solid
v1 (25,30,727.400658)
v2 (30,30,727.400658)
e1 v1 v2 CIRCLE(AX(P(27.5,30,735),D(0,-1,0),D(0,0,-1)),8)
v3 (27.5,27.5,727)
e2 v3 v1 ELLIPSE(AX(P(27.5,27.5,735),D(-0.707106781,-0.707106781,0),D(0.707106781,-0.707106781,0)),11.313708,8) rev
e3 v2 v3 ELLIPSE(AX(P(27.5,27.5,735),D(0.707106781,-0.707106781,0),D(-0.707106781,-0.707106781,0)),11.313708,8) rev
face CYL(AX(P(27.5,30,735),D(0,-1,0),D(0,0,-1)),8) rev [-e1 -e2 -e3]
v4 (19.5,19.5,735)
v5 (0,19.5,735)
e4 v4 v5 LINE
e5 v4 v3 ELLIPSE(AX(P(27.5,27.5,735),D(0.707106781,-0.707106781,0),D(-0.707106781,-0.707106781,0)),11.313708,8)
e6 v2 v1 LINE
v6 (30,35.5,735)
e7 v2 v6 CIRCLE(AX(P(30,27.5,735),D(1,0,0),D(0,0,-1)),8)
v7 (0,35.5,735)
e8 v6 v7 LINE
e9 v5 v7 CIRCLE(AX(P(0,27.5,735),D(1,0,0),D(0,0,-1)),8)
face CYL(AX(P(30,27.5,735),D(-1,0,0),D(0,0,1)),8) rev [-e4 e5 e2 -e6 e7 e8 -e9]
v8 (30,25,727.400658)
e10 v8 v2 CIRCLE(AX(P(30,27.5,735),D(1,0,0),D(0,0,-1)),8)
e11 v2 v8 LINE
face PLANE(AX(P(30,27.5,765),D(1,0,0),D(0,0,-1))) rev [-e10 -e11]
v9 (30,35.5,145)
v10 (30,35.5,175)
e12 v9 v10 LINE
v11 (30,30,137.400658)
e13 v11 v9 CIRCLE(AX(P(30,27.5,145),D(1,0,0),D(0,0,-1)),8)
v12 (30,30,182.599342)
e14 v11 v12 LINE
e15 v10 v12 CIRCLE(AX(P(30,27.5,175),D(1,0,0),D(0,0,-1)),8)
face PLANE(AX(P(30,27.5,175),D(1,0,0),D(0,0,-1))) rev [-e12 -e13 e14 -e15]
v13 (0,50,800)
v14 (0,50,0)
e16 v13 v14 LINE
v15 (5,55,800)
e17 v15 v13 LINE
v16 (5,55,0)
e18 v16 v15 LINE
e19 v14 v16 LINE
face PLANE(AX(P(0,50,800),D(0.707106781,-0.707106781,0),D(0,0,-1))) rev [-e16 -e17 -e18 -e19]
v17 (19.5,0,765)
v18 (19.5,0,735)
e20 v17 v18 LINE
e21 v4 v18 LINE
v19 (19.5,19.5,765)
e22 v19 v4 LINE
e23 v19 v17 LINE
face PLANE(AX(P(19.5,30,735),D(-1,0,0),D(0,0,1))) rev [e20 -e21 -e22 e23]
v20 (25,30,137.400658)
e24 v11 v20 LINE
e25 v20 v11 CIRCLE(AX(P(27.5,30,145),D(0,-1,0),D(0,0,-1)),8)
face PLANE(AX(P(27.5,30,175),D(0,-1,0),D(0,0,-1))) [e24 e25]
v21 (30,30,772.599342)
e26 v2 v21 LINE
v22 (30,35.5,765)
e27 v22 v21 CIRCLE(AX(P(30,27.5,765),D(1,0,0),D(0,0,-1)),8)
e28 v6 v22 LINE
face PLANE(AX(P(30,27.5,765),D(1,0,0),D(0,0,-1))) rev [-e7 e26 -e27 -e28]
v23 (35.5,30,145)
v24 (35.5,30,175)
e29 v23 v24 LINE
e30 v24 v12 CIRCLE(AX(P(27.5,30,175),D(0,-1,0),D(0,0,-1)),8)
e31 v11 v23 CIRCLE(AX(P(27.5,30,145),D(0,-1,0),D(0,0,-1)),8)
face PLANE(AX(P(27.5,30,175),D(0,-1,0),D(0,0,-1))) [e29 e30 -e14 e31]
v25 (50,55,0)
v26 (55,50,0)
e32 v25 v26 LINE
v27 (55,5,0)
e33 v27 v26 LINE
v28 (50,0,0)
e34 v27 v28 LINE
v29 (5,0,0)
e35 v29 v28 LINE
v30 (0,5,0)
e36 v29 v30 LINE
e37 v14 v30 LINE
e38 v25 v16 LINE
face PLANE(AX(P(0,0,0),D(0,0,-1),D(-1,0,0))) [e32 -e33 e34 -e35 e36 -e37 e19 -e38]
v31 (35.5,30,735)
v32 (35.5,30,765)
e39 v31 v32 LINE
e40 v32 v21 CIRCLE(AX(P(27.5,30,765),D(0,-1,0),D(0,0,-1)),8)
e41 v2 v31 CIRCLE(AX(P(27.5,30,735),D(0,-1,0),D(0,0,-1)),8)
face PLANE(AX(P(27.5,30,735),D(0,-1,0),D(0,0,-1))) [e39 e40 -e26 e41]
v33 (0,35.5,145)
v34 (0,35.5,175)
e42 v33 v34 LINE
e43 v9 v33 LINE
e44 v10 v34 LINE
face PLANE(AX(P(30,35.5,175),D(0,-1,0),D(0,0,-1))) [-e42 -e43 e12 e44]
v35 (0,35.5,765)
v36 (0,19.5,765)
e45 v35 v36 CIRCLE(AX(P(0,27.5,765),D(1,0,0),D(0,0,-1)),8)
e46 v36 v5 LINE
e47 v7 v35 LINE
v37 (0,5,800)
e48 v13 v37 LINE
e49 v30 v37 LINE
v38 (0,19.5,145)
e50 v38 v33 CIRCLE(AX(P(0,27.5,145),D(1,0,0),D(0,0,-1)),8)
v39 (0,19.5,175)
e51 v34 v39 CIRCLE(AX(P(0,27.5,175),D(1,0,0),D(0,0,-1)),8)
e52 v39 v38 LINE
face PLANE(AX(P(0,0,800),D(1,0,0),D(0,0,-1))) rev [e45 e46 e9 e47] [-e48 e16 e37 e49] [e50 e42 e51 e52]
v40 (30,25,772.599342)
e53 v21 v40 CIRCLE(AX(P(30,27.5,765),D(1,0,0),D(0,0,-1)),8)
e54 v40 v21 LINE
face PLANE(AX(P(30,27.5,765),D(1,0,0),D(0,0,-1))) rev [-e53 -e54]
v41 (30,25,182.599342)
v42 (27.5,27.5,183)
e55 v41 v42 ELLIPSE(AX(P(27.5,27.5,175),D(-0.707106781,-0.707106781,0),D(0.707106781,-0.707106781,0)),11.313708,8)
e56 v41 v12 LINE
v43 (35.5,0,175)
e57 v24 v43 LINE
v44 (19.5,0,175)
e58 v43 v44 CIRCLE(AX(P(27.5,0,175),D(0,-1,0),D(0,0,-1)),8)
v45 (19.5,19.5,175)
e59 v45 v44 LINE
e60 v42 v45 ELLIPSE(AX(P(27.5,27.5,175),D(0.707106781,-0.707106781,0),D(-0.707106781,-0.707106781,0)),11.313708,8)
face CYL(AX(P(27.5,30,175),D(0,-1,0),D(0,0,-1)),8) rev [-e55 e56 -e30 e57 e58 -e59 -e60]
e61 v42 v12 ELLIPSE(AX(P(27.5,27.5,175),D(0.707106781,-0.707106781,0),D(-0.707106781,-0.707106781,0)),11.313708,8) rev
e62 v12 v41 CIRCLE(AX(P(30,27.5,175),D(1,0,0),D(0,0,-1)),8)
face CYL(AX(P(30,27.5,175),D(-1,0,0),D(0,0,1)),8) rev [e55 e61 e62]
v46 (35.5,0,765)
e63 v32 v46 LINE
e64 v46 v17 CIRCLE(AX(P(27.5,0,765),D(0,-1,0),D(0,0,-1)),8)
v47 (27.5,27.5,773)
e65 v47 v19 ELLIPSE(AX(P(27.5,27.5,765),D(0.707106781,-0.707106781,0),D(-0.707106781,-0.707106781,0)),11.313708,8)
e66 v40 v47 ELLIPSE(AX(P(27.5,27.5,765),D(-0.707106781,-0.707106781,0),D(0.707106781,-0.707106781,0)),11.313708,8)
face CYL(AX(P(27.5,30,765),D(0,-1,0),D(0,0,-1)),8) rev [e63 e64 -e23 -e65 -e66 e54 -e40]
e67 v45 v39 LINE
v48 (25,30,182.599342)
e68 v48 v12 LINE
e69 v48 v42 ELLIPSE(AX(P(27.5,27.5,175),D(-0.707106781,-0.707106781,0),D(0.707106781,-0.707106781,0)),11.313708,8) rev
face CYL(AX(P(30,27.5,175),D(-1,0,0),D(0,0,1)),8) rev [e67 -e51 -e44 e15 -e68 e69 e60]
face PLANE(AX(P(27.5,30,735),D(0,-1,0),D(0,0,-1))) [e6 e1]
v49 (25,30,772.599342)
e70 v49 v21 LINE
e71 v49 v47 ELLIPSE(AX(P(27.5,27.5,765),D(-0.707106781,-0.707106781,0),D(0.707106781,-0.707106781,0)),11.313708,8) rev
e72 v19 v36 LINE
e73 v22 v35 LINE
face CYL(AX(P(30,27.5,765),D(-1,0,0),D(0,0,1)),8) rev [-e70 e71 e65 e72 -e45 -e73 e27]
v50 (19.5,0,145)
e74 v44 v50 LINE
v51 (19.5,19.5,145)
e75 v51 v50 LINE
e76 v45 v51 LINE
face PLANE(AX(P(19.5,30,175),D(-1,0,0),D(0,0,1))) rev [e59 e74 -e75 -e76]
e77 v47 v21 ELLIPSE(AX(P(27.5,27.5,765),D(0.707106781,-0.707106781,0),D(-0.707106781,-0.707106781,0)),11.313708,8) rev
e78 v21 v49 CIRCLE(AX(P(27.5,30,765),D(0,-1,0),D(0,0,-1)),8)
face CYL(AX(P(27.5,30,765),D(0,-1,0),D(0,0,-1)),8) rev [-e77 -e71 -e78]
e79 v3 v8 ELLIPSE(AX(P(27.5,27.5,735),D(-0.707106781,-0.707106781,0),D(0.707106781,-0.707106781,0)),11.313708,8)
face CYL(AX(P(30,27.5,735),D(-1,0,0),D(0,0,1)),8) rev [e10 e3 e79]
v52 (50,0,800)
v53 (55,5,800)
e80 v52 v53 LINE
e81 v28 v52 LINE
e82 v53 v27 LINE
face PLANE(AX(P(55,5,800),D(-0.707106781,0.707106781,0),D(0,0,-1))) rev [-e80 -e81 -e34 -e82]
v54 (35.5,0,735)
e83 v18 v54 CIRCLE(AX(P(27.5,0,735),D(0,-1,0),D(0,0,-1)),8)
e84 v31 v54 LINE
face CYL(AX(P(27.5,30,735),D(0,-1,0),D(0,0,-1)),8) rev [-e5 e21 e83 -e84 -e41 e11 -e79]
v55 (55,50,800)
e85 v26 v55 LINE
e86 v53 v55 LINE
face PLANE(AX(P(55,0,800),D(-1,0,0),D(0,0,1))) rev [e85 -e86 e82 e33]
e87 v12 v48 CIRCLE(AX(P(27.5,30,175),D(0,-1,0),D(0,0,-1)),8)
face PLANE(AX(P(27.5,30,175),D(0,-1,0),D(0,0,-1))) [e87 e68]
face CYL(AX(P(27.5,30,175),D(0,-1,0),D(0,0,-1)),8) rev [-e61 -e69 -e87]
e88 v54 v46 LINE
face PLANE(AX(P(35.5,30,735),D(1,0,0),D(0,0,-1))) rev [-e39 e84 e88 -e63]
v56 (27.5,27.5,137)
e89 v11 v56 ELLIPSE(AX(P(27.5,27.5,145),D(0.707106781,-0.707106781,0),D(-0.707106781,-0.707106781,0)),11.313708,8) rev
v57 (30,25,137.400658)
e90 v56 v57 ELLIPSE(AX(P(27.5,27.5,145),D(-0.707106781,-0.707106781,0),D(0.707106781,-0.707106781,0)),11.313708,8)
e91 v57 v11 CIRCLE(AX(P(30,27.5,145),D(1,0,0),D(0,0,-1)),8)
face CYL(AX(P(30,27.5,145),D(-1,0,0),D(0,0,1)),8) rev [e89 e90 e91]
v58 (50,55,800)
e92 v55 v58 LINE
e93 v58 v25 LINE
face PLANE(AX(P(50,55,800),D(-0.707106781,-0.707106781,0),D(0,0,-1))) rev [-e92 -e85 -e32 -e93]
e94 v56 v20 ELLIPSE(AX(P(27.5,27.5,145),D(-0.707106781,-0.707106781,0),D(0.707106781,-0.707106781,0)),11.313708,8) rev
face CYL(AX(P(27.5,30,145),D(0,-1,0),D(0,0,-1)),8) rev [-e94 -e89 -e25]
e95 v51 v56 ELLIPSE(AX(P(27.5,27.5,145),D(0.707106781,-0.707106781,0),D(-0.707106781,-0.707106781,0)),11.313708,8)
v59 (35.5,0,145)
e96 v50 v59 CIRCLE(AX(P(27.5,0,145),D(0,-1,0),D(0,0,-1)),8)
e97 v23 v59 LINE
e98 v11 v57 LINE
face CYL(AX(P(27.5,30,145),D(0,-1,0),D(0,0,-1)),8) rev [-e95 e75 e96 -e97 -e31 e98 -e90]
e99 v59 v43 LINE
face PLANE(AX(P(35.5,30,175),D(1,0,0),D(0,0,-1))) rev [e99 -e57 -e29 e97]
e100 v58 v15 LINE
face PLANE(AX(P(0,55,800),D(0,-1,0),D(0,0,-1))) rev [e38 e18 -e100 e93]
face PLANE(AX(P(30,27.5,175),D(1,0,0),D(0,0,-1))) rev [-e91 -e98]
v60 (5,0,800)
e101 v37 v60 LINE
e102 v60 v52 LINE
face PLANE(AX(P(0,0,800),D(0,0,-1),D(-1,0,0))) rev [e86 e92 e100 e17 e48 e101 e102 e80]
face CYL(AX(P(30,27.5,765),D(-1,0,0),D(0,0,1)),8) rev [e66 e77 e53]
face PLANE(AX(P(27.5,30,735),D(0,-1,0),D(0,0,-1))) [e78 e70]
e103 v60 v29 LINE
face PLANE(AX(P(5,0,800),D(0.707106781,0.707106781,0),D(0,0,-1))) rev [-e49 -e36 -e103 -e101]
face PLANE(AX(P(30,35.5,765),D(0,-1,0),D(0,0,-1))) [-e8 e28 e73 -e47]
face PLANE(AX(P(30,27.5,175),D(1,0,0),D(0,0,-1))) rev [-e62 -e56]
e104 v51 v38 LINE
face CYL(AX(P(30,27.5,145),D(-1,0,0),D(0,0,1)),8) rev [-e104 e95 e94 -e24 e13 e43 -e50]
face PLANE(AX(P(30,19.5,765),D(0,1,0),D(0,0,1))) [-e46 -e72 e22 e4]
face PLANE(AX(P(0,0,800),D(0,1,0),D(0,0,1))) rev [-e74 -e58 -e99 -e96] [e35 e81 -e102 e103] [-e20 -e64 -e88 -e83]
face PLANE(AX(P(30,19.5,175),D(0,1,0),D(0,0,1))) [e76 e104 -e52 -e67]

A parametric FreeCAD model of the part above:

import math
import FreeCAD as App
import Part
import Sketcher

V = App.Vector
Q = App.Units.Quantity


def edges_at(feature, points):
    """Names of the edges that pass closest to the given points."""
    edges = feature.Shape.Edges
    near = lambda p: min(range(len(edges)), key=lambda i: edges[i].distToShape(Part.Vertex(*p))[0])
    return sorted({f"Edge{near(p) + 1}" for p in points})

doc = App.newDocument("Part")
params = doc.addObject("Spreadsheet::Sheet", "Params")
for row, (alias, value) in enumerate([
    ("sketch1_width", "55 mm"),
    ("pad1_length", "800 mm"),
    ("sketch2_radius", "8 mm"),
    ("sketch2_height", "30 mm"),
    ("pocket1_length", "30 mm"),
    ("sketch3_radius", "8 mm"),
    ("sketch3_height", "30 mm"),
    ("pocket2_length", "30 mm"),
    ("chamfer_size", "5 mm"),
], start=1):
    params.set(f"A{row}", alias)
    params.set(f"B{row}", "=" + value)
    params.setAlias(f"B{row}", alias)

body = doc.addObject("PartDesign::Body", "Body")

sketch1 = doc.addObject("Sketcher::SketchObject", "Sketch")
body.addObject(sketch1)
sketch1.AttachmentSupport = (doc.XY_Plane, [""])
sketch1.MapMode = "FlatFace"
sketch1.addGeometry([
    Part.LineSegment(V(0, 55, 0), V(0, 0, 0)),
    Part.LineSegment(V(0, 0, 0), V(55, 0, 0)),
    Part.LineSegment(V(55, 0, 0), V(55, 55, 0)),
    Part.LineSegment(V(55, 55, 0), V(0, 55, 0)),
], False)
sketch1.addConstraint([
    Sketcher.Constraint("Coincident", 0, 2, 1, 1),
    Sketcher.Constraint("Coincident", 1, 2, 2, 1),
    Sketcher.Constraint("Coincident", 2, 2, 3, 1),
    Sketcher.Constraint("Coincident", 3, 2, 0, 1),
    Sketcher.Constraint("Vertical", 0),
    Sketcher.Constraint("Horizontal", 1),
    Sketcher.Constraint("Vertical", 2),
    Sketcher.Constraint("Horizontal", 3),
    Sketcher.Constraint("Coincident", 0, 2, -1, 1),
    Sketcher.Constraint("Equal", 3, 0),
    Sketcher.Constraint("DistanceX", 1, 1, 1, 2, Q("55 mm")),
])
sketch1.setExpression("Constraints[10]", "Params.sketch1_width")
pad1 = doc.addObject("PartDesign::Pad", "Pad")
body.addObject(pad1)
pad1.Profile = sketch1
pad1.setExpression("Length", "Params.pad1_length")

sketch2 = doc.addObject("Sketcher::SketchObject", "Sketch001")
body.addObject(sketch2)
sketch2.AttachmentSupport = (doc.XZ_Plane, [""])
sketch2.MapMode = "FlatFace"
sketch2.addGeometry([
    Part.LineSegment(V(36, 145, 0), V(36, 175, 0)),
    Part.ArcOfCircle(Part.Circle(V(28, 175, 0), V(0, 0, 1), 8), math.radians(0), math.radians(180)),
    Part.LineSegment(V(20, 175, 0), V(20, 145, 0)),
    Part.ArcOfCircle(Part.Circle(V(28, 145, 0), V(0, 0, 1), 8), math.radians(180), math.radians(360)),
    Part.LineSegment(V(20, 765, 0), V(20, 735, 0)),
    Part.ArcOfCircle(Part.Circle(V(28, 735, 0), V(0, 0, 1), 8), math.radians(180), math.radians(360)),
    Part.LineSegment(V(36, 735, 0), V(36, 765, 0)),
    Part.ArcOfCircle(Part.Circle(V(28, 765, 0), V(0, 0, 1), 8), math.radians(0), math.radians(180)),
], False)
sketch2.addConstraint([
    Sketcher.Constraint("Tangent", 0, 2, 1, 1),
    Sketcher.Constraint("Tangent", 1, 2, 2, 1),
    Sketcher.Constraint("Tangent", 2, 2, 3, 1),
    Sketcher.Constraint("Tangent", 3, 2, 0, 1),
    Sketcher.Constraint("Tangent", 4, 2, 5, 1),
    Sketcher.Constraint("Tangent", 5, 2, 6, 1),
    Sketcher.Constraint("Tangent", 6, 2, 7, 1),
    Sketcher.Constraint("Tangent", 7, 2, 4, 1),
    Sketcher.Constraint("Vertical", 0),
    Sketcher.Constraint("Vertical", 2),
    Sketcher.Constraint("Vertical", 4),
    Sketcher.Constraint("Vertical", 6),
    Sketcher.Constraint("Equal", 3, 5),
    Sketcher.Constraint("Vertical", 3, 3, 5, 3),
    Sketcher.Constraint("Equal", 2, 4),
    Sketcher.Constraint("Radius", 1, Q("8 mm")),
    Sketcher.Constraint("DistanceY", 0, 1, 0, 2, Q("30 mm")),
    Sketcher.Constraint("DistanceY", -1, 1, 1, 3, Q("175 mm")),
    Sketcher.Constraint("DistanceY", -1, 1, 5, 3, Q("735 mm")),
    Sketcher.Constraint("DistanceX", -1, 1, 1, 3, Q("27.5 mm")),
])
sketch2.setExpression("Constraints[15]", "Params.sketch2_radius")
sketch2.setExpression("Constraints[16]", "Params.sketch2_height")
pocket1 = doc.addObject("PartDesign::Pocket", "Pocket")
body.addObject(pocket1)
pocket1.Profile = sketch2
pocket1.setExpression("Length", "Params.pocket1_length")

sketch3 = doc.addObject("Sketcher::SketchObject", "Sketch002")
body.addObject(sketch3)
sketch3.AttachmentSupport = (doc.YZ_Plane, [""])
sketch3.MapMode = "FlatFace"
sketch3.addGeometry([
    Part.LineSegment(V(36, 145, 0), V(36, 175, 0)),
    Part.ArcOfCircle(Part.Circle(V(28, 175, 0), V(0, 0, 1), 8), math.radians(0), math.radians(180)),
    Part.LineSegment(V(20, 175, 0), V(20, 145, 0)),
    Part.ArcOfCircle(Part.Circle(V(28, 145, 0), V(0, 0, 1), 8), math.radians(180), math.radians(360)),
    Part.LineSegment(V(36, 735, 0), V(36, 765, 0)),
    Part.ArcOfCircle(Part.Circle(V(28, 765, 0), V(0, 0, 1), 8), math.radians(0), math.radians(180)),
    Part.LineSegment(V(20, 765, 0), V(20, 735, 0)),
    Part.ArcOfCircle(Part.Circle(V(28, 735, 0), V(0, 0, 1), 8), math.radians(180), math.radians(360)),
], False)
sketch3.addConstraint([
    Sketcher.Constraint("Tangent", 0, 2, 1, 1),
    Sketcher.Constraint("Tangent", 1, 2, 2, 1),
    Sketcher.Constraint("Tangent", 2, 2, 3, 1),
    Sketcher.Constraint("Tangent", 3, 2, 0, 1),
    Sketcher.Constraint("Tangent", 4, 2, 5, 1),
    Sketcher.Constraint("Tangent", 5, 2, 6, 1),
    Sketcher.Constraint("Tangent", 6, 2, 7, 1),
    Sketcher.Constraint("Tangent", 7, 2, 4, 1),
    Sketcher.Constraint("Vertical", 0),
    Sketcher.Constraint("Vertical", 2),
    Sketcher.Constraint("Vertical", 4),
    Sketcher.Constraint("Vertical", 6),
    Sketcher.Constraint("Equal", 3, 5),
    Sketcher.Constraint("Vertical", 3, 3, 5, 3),
    Sketcher.Constraint("Equal", 2, 4),
    Sketcher.Constraint("Radius", 1, Q("8 mm")),
    Sketcher.Constraint("DistanceY", 0, 1, 0, 2, Q("30 mm")),
    Sketcher.Constraint("DistanceY", -1, 1, 1, 3, Q("175 mm")),
    Sketcher.Constraint("DistanceY", -1, 1, 5, 3, Q("765 mm")),
    Sketcher.Constraint("DistanceX", -1, 1, 1, 3, Q("27.5 mm")),
])
sketch3.setExpression("Constraints[15]", "Params.sketch3_radius")
sketch3.setExpression("Constraints[16]", "Params.sketch3_height")
pocket2 = doc.addObject("PartDesign::Pocket", "Pocket001")
body.addObject(pocket2)
pocket2.Profile = sketch3
pocket2.setExpression("Length", "Params.pocket2_length")
pocket2.Reversed = True
doc.recompute()

chamfer = doc.addObject("PartDesign::Chamfer", "Chamfer")
body.addObject(chamfer)
chamfer.Base = (pocket2, edges_at(pocket2, [
    (0, 55, 400),
    (55, 55, 400),
    (55, 0, 400),
    (0, 0, 400),
]))
chamfer.setExpression("Size", "Params.chamfer_size")

doc.recompute()
